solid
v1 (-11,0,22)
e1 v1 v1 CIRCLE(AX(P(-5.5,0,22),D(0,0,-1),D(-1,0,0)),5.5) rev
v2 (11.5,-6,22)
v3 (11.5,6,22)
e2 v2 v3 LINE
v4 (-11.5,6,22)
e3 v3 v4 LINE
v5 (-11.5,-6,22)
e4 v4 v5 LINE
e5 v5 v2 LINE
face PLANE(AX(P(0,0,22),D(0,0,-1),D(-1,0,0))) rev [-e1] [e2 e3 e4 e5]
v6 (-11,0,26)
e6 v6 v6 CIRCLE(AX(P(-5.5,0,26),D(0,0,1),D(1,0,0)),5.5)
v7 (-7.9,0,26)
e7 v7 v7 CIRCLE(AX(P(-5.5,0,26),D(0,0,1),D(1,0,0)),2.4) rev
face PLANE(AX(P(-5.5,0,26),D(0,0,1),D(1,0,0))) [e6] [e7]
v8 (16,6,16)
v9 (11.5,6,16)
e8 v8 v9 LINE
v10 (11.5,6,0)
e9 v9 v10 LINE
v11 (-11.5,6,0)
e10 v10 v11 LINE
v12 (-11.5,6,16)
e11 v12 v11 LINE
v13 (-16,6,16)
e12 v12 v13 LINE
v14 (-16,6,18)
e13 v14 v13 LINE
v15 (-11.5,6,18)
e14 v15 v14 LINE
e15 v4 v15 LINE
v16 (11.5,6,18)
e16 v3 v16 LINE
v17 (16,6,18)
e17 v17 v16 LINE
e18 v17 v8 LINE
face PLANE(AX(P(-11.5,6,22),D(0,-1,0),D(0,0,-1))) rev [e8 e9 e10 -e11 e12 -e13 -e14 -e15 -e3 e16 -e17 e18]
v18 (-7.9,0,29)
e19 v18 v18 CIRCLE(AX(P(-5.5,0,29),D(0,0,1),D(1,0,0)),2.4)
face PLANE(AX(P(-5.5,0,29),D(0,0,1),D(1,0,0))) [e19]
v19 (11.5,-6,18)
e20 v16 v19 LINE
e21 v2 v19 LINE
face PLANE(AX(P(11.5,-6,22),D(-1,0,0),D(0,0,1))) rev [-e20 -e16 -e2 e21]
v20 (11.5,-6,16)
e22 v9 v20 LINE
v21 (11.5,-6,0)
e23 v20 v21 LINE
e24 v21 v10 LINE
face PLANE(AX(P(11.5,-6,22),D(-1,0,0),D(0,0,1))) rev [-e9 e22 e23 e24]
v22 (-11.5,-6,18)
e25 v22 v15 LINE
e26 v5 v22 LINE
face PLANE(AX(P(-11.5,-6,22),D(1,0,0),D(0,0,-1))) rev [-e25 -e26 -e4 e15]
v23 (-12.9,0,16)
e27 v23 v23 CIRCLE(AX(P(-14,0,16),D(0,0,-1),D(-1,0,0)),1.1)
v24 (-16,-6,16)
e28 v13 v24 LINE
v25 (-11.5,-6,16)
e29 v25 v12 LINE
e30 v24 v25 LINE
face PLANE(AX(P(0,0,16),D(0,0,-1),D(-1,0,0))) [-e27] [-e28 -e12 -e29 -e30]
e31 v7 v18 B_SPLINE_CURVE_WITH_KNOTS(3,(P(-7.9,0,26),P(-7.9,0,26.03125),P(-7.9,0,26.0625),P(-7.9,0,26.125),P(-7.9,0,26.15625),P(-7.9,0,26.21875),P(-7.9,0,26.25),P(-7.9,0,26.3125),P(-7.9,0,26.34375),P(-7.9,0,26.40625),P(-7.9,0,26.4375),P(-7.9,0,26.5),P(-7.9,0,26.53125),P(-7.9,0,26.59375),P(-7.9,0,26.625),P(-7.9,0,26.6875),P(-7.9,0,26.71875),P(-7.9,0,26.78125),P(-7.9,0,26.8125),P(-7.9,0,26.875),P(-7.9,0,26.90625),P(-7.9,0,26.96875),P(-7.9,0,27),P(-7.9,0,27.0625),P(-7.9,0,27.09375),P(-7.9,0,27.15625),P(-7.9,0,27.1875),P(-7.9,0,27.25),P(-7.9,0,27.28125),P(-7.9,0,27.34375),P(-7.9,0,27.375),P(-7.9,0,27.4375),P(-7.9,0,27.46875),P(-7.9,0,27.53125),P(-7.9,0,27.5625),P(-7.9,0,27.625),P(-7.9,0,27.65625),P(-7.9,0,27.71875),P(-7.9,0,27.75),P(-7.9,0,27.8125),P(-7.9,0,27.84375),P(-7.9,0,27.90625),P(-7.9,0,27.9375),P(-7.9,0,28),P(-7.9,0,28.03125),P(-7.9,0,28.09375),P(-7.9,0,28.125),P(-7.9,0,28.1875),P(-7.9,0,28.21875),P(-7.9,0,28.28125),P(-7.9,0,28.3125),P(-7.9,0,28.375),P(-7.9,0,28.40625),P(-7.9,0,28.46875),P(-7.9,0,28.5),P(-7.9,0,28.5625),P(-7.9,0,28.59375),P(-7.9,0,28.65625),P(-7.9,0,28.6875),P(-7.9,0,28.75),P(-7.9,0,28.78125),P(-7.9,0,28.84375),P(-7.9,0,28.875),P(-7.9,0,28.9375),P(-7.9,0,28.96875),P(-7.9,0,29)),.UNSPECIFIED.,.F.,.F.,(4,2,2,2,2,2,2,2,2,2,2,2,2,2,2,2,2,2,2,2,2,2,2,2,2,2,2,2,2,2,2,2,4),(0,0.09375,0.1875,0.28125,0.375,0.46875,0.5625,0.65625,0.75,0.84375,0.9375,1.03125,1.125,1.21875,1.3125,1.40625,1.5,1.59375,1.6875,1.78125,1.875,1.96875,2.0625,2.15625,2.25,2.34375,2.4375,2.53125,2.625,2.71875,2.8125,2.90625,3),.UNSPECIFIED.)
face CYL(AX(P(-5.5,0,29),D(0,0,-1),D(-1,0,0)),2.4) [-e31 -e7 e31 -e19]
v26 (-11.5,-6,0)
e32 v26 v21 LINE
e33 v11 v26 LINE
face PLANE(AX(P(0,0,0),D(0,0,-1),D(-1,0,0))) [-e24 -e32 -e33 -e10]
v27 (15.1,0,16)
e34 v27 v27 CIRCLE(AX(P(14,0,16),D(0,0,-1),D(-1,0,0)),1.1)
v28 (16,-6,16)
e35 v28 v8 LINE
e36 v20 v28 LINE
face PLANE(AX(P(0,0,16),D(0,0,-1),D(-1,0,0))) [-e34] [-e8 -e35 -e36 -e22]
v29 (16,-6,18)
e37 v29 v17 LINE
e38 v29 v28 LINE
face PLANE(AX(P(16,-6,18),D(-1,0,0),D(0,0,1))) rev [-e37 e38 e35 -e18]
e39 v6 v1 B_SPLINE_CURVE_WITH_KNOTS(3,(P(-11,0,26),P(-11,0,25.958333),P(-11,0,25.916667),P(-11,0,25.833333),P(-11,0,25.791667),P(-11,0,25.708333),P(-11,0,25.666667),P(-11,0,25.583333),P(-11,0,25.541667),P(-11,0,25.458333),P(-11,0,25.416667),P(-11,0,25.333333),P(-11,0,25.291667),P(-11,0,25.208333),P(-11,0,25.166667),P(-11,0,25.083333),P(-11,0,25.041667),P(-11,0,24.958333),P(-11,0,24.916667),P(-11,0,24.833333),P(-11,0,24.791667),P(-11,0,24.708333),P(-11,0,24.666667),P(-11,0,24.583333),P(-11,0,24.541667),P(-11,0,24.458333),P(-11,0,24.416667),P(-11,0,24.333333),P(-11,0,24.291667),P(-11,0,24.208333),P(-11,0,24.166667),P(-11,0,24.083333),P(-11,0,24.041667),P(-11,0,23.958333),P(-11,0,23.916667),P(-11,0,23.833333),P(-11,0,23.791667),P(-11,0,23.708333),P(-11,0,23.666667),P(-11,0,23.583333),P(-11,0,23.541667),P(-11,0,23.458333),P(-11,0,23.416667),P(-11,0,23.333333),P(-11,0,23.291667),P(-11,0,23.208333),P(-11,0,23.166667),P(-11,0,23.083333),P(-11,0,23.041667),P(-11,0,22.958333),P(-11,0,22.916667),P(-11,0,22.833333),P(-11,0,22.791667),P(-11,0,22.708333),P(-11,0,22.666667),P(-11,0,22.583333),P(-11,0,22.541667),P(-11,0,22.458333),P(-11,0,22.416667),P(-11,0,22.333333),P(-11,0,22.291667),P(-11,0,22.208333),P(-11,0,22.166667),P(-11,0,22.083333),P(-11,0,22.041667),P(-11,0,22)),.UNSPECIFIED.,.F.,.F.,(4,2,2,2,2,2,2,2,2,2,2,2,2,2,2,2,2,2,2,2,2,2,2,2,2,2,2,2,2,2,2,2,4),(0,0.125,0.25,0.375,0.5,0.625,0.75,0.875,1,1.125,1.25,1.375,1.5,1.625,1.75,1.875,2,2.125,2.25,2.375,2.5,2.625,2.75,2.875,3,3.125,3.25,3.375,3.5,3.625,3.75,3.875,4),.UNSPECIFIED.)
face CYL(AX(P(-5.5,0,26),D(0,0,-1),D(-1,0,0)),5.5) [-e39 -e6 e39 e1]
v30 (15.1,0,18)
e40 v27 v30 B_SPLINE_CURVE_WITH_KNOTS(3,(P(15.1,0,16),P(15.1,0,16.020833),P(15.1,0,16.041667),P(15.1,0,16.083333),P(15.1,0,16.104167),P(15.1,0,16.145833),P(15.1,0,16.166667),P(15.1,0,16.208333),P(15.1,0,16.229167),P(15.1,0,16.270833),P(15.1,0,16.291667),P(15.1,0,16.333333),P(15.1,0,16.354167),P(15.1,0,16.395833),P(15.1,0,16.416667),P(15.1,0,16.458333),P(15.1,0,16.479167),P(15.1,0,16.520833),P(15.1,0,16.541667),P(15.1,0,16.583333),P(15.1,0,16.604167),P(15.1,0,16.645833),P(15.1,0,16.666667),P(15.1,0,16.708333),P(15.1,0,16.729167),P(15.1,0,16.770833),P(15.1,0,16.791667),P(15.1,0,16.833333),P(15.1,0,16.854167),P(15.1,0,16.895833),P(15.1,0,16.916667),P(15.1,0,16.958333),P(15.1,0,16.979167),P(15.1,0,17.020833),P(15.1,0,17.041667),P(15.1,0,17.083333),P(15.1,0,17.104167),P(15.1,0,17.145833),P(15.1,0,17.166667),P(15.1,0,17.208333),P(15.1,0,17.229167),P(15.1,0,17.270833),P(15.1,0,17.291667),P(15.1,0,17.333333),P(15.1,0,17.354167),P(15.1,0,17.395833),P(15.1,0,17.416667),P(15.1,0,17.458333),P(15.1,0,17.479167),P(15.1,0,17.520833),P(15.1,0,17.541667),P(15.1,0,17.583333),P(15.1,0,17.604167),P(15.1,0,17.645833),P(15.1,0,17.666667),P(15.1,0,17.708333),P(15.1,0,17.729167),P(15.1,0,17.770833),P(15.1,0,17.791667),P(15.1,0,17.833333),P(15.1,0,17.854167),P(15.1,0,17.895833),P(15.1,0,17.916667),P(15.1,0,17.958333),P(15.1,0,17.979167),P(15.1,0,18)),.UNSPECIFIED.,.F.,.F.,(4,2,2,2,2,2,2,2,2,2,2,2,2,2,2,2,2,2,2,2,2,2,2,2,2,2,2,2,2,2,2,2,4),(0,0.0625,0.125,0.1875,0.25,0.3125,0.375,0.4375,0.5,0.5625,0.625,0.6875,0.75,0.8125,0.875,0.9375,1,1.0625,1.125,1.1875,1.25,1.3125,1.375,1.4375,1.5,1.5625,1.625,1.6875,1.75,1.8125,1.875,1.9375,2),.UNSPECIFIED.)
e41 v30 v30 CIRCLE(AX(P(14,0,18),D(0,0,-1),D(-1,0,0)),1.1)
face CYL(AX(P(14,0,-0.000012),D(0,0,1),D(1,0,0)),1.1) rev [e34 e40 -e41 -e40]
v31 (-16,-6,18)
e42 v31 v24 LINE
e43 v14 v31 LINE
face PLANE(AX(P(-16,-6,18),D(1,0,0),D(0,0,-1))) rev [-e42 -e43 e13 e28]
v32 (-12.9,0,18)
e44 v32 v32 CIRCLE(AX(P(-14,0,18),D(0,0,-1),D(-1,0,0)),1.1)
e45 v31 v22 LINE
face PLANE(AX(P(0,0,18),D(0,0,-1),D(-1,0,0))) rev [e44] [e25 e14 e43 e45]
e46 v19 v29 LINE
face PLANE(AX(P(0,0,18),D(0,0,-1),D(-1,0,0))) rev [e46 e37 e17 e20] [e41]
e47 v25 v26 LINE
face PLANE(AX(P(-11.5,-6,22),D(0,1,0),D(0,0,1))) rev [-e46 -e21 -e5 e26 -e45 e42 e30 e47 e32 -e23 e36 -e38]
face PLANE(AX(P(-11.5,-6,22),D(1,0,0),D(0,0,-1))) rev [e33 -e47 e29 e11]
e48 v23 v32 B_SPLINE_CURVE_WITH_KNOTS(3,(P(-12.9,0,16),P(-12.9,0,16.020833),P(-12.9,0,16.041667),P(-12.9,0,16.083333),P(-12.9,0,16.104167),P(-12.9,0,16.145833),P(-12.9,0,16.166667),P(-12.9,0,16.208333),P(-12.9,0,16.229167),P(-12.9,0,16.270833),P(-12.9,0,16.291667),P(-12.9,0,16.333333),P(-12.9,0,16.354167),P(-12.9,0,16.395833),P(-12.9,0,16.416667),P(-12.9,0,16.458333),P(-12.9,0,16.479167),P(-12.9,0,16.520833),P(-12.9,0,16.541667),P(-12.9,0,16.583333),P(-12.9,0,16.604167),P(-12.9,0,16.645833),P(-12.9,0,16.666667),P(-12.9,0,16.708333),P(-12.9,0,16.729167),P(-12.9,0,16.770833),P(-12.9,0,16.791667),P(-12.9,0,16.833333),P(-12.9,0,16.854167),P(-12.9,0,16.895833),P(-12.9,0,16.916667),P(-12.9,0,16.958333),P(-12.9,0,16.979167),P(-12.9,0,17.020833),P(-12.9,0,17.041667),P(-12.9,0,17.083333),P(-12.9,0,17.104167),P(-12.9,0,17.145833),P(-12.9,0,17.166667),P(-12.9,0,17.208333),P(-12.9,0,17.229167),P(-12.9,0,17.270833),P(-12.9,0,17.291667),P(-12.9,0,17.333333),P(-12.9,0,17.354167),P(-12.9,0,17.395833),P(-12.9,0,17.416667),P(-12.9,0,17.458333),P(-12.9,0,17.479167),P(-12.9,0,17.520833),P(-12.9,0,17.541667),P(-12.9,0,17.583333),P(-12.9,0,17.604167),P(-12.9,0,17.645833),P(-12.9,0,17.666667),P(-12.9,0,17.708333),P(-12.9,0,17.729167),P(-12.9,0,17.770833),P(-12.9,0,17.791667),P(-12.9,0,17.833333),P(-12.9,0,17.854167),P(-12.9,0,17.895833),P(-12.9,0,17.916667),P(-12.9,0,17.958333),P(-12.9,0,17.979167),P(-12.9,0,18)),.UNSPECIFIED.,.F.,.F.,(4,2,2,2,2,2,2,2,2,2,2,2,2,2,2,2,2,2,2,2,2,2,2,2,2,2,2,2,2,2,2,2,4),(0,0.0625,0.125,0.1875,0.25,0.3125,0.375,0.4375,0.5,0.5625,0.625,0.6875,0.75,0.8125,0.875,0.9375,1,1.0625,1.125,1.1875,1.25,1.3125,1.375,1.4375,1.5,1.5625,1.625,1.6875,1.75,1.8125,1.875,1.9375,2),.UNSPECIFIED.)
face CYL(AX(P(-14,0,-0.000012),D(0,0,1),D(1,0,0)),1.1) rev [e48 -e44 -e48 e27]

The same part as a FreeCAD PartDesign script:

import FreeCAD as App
import Part
import Sketcher

V = App.Vector
Q = App.Units.Quantity


def add_polygon(sketch, points):
    """Adds a closed chain of lines whose ends are joined by coincident constraints."""
    first, n = sketch.GeometryCount, len(points)
    for a, b in zip(points, points[1:] + points[:1]):
        sketch.addGeometry(Part.LineSegment(App.Vector(*a, 0), App.Vector(*b, 0)), False)
    for i in range(n):
        sketch.addConstraint(Sketcher.Constraint("Coincident", first + i, 2, first + (i + 1) % n, 1))

doc = App.newDocument("Part")
body = doc.addObject("PartDesign::Body", "Body")

# Sketch on XY plane
sketch1 = body.newObject("Sketcher::SketchObject", "Sketch")
sketch1.AttachmentSupport = (doc.getObject("XY_Plane"), [""])
sketch1.MapMode = "FlatFace"
add_polygon(sketch1, [(-12, 6), (-12, -6), (12, -6), (12, 6)])  # lines 0-3
sketch1.addConstraint([
    Sketcher.Constraint("Vertical", 0),
    Sketcher.Constraint("Horizontal", 1),
    Sketcher.Constraint("Vertical", 2),
    Sketcher.Constraint("Horizontal", 3),
    Sketcher.Constraint("Symmetric", 0, 2, 2, 2, -1, 1),
    Sketcher.Constraint("DistanceX", 1, 1, 1, 2, Q("23 mm")),
    Sketcher.Constraint("DistanceY", 0, 2, 0, 1, Q("12 mm")),
])
pad1 = body.newObject("PartDesign::Pad", "Pad")
pad1.Profile = sketch1
pad1.Length = 22

# Sketch on XY plane
sketch2 = body.newObject("Sketcher::SketchObject", "Sketch001")
sketch2.AttachmentSupport = (doc.getObject("XY_Plane"), [""])
sketch2.MapMode = "FlatFace"
sketch2.AttachmentOffset = App.Placement(V(0, 0, 16), App.Rotation())
add_polygon(sketch2, [(-16, 6), (-16, -6), (16, -6), (16, 6)])  # lines 0-3
sketch2.addConstraint([
    Sketcher.Constraint("Vertical", 0),
    Sketcher.Constraint("Horizontal", 1),
    Sketcher.Constraint("Vertical", 2),
    Sketcher.Constraint("Horizontal", 3),
    Sketcher.Constraint("Symmetric", 0, 2, 2, 2, -1, 1),
    Sketcher.Constraint("DistanceX", 1, 1, 1, 2, Q("32 mm")),
    Sketcher.Constraint("DistanceY", 0, 2, 0, 1, Q("12 mm")),
])
pad2 = body.newObject("PartDesign::Pad", "Pad001")
pad2.Profile = sketch2
pad2.Length = 2

# Sketch on XY plane
sketch3 = body.newObject("Sketcher::SketchObject", "Sketch002")
sketch3.AttachmentSupport = (doc.getObject("XY_Plane"), [""])
sketch3.MapMode = "FlatFace"
sketch3.addGeometry(Part.Circle(V(-6, 0, 0), V(0, 0, 1), 6), False)
sketch3.addConstraint([
    Sketcher.Constraint("PointOnObject", 0, 3, -1),
    Sketcher.Constraint("Diameter", 0, Q("11 mm")),
    Sketcher.Constraint("DistanceX", 0, 3, -1, 1, Q("5.5 mm")),
])
pad3 = body.newObject("PartDesign::Pad", "Pad002")
pad3.Profile = sketch3
pad3.Length = 26

# Sketch on XY plane
sketch4 = body.newObject("Sketcher::SketchObject", "Sketch003")
sketch4.AttachmentSupport = (doc.getObject("XY_Plane"), [""])
sketch4.MapMode = "FlatFace"
sketch4.addGeometry(Part.Circle(V(-5.5, 0, 0), V(0, 0, 1), 2.4), False)
sketch4.addConstraint([
    Sketcher.Constraint("PointOnObject", 0, 3, -1),
    Sketcher.Constraint("Diameter", 0, Q("4.8 mm")),
    Sketcher.Constraint("DistanceX", 0, 3, -1, 1, Q("5.5 mm")),
])
pad4 = body.newObject("PartDesign::Pad", "Pad003")
pad4.Profile = sketch4
pad4.Length = 29

# Sketch on XY plane
sketch5 = body.newObject("Sketcher::SketchObject", "Sketch004")
sketch5.AttachmentSupport = (doc.getObject("XY_Plane"), [""])
sketch5.MapMode = "FlatFace"
sketch5.addGeometry([
    Part.Circle(V(-14, 0, 0), V(0, 0, 1), 1.1),
    Part.Circle(V(14, 0, 0), V(0, 0, 1), 1.1),
], False)
sketch5.addConstraint([
    Sketcher.Constraint("Equal", 0, 1),
    Sketcher.Constraint("Symmetric", 0, 3, 1, 3, -1, 1),
    Sketcher.Constraint("PointOnObject", 0, 3, -1),
    Sketcher.Constraint("Diameter", 0, Q("2.2 mm")),
    Sketcher.Constraint("DistanceX", 0, 3, -1, 1, Q("14 mm")),
])
pocket1 = body.newObject("PartDesign::Pocket", "Pocket")
pocket1.Profile = sketch5
pocket1.Type = "ThroughAll"
pocket1.Midplane = True

doc.recompute()
